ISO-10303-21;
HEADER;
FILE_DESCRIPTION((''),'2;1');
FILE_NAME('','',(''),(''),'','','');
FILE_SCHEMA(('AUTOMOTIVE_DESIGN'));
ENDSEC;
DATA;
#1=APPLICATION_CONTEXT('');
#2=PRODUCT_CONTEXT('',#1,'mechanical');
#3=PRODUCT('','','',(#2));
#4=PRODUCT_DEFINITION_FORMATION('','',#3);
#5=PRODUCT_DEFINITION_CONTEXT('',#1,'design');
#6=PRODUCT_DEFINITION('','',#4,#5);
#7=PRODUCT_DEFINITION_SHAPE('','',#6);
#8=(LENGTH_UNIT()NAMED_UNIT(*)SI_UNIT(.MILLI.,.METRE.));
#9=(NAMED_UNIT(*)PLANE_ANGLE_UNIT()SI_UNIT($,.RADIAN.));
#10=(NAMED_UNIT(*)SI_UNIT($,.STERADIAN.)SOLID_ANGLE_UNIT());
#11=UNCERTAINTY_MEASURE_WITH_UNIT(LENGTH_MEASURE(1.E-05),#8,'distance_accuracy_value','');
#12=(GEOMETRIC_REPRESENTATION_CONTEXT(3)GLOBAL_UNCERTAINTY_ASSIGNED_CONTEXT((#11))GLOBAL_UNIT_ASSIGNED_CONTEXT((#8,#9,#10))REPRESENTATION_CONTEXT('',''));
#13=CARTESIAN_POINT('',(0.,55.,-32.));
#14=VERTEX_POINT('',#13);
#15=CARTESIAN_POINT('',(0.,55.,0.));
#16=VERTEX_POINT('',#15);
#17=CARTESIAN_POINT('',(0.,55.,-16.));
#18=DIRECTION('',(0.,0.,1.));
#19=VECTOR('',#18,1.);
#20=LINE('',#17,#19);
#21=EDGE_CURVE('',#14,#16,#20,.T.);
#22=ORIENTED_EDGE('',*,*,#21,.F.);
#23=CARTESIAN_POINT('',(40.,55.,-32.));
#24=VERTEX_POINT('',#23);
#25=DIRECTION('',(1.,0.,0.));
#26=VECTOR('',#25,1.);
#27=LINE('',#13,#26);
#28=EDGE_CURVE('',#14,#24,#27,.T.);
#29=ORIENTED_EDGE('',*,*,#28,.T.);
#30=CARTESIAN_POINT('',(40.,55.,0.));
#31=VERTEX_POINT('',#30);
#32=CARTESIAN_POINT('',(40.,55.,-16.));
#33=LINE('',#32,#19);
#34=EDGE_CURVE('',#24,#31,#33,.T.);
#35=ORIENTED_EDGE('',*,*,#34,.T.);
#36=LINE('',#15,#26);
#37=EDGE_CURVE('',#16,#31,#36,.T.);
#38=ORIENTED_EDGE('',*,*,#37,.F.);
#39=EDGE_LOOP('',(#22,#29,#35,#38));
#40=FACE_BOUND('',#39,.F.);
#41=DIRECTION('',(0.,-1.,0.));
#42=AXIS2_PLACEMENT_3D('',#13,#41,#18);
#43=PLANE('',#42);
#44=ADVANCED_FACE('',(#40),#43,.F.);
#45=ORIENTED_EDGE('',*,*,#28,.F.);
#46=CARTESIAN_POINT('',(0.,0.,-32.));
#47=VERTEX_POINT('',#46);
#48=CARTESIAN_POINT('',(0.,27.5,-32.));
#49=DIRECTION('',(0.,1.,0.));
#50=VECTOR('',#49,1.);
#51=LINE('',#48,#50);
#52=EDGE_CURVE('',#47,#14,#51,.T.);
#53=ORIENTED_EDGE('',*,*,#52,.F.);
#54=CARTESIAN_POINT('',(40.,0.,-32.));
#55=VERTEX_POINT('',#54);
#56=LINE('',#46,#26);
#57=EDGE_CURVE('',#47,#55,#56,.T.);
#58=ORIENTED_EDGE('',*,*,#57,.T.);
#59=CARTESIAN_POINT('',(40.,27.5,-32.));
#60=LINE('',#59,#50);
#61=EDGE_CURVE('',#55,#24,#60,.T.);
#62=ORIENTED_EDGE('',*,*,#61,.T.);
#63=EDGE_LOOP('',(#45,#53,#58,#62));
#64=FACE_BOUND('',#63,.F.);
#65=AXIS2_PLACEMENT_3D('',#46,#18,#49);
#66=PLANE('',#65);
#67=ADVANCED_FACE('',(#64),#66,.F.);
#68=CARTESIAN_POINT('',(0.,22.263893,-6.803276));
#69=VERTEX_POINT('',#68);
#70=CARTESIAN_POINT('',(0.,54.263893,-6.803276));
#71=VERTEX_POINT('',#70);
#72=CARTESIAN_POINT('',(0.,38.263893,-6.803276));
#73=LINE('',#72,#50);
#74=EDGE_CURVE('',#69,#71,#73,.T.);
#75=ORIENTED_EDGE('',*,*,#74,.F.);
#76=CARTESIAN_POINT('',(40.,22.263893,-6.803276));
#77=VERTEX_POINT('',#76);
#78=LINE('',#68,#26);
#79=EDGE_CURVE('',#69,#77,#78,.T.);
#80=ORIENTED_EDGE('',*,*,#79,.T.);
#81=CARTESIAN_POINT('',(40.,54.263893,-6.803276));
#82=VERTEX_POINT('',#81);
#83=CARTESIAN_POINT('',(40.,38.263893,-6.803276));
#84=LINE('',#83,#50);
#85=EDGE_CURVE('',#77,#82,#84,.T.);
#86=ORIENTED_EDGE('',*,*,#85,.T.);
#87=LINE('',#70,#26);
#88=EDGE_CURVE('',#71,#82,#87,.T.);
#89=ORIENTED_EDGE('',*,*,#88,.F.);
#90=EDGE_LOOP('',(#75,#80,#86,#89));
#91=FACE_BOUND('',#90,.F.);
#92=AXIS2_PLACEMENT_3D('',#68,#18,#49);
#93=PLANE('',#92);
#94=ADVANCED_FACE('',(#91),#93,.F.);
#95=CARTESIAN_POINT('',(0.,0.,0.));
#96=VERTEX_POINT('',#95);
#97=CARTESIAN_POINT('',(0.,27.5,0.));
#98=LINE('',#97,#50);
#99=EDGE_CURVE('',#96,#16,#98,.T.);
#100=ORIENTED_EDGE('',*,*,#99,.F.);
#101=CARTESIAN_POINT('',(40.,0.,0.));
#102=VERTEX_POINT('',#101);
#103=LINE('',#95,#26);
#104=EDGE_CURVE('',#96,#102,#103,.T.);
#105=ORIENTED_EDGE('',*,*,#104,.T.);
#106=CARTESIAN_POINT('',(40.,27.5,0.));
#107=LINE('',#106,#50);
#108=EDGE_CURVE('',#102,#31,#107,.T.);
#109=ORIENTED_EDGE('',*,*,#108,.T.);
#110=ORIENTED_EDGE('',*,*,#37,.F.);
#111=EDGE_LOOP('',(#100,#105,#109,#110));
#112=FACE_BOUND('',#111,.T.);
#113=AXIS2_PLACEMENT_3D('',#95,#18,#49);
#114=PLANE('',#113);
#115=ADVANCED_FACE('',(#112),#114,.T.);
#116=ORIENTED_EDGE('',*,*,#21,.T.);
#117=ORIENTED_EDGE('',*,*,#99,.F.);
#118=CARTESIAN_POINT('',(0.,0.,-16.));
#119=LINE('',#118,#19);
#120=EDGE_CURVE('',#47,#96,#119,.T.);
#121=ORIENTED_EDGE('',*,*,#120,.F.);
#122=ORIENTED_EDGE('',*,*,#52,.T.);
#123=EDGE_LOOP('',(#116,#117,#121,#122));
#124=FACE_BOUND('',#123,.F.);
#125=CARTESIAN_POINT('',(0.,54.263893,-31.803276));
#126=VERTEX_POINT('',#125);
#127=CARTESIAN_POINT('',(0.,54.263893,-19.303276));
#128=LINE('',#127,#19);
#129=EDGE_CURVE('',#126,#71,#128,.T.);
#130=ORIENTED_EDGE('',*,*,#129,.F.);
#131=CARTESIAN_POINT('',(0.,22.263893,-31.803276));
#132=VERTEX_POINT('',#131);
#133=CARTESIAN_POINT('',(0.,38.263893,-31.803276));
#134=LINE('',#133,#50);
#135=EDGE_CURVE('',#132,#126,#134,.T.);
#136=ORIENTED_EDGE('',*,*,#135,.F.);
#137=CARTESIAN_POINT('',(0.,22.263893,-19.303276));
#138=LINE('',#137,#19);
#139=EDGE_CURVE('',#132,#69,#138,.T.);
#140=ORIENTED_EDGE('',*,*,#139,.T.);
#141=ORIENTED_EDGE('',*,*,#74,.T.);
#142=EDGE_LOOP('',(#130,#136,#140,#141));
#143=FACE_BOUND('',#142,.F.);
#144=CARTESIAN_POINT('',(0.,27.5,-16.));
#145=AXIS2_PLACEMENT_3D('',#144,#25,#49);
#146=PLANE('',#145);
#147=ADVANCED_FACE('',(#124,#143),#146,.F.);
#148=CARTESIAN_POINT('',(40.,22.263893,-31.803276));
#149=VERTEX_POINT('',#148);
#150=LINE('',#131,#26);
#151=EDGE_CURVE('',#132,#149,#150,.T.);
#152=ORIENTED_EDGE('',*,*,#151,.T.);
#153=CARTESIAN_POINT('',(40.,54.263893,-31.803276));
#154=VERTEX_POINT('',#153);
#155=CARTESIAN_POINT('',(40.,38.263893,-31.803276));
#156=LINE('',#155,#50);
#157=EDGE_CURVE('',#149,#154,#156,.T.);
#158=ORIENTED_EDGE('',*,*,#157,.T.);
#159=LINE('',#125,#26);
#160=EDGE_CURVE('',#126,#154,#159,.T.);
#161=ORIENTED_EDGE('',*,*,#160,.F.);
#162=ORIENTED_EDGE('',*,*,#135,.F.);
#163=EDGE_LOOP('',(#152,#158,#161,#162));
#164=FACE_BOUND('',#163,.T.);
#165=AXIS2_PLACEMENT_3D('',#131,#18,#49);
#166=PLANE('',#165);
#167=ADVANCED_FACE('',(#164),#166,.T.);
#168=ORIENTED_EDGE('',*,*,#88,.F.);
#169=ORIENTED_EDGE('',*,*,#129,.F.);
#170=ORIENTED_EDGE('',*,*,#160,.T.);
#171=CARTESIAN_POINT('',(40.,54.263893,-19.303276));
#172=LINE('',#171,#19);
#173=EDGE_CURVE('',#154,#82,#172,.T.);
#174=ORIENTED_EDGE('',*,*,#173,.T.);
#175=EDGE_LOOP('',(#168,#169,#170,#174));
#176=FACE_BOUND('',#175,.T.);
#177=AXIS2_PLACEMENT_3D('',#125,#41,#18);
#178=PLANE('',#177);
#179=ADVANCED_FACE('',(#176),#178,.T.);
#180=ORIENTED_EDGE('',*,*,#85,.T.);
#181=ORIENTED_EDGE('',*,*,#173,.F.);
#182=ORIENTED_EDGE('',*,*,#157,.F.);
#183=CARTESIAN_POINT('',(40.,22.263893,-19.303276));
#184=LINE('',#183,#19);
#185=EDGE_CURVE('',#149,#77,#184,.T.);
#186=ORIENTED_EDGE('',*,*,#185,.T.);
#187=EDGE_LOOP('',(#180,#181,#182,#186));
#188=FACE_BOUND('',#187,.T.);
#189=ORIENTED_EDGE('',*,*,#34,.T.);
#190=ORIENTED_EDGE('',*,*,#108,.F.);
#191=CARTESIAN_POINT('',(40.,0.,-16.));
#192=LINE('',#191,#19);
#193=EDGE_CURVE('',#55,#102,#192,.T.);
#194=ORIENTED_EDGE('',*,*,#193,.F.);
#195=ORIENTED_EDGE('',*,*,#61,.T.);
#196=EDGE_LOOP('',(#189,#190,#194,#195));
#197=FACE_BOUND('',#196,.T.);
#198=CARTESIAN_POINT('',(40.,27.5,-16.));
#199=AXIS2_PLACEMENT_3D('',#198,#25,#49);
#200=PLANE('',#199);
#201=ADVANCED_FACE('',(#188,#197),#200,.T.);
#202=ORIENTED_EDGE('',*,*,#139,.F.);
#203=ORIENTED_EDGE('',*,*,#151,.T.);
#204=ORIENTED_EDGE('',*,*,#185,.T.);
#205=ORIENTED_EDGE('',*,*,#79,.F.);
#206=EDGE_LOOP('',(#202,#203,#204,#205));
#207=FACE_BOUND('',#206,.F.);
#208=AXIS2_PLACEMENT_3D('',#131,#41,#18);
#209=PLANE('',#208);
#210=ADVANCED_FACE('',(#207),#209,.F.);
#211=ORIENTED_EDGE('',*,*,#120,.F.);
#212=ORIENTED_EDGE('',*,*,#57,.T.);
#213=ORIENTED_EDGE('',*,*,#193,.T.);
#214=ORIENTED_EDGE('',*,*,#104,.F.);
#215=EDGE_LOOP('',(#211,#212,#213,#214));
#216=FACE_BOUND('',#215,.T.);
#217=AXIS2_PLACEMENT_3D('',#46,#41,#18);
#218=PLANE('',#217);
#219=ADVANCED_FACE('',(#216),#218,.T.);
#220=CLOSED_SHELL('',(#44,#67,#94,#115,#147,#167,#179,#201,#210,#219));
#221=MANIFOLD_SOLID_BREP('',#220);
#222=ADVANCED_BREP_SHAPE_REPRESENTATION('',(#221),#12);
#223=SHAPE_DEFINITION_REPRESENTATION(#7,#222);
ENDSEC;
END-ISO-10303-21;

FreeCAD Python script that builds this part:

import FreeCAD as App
import Part
import Sketcher


def add_polygon(sketch, points):
    """Adds a closed chain of lines whose ends are joined by coincident constraints."""
    first, n = sketch.GeometryCount, len(points)
    for a, b in zip(points, points[1:] + points[:1]):
        sketch.addGeometry(Part.LineSegment(App.Vector(*a, 0), App.Vector(*b, 0)), False)
    for i in range(n):
        sketch.addConstraint(Sketcher.Constraint("Coincident", first + i, 2, first + (i + 1) % n, 1))

doc = App.newDocument("Part")
body = doc.addObject("PartDesign::Body", "Body")

# Sketch on YZ plane
sketch1 = body.newObject("Sketcher::SketchObject", "Sketch")
sketch1.AttachmentSupport = (doc.getObject("YZ_Plane"), [""])
sketch1.MapMode = "FlatFace"
add_polygon(sketch1, [(0, 0), (0, -32), (55, -32), (55, 0)])  # lines 0-3
sketch1.addConstraint(Sketcher.Constraint("Vertical", 0))
sketch1.addConstraint(Sketcher.Constraint("Horizontal", 1))
sketch1.addConstraint(Sketcher.Constraint("Vertical", 2))
sketch1.addConstraint(Sketcher.Constraint("Horizontal", 3))
sketch1.addConstraint(Sketcher.Constraint("Coincident", 3, 2, -1, 1))
sketch1.addConstraint(Sketcher.Constraint("DistanceX", 1, 1, 1, 2, 55.0))
sketch1.addConstraint(Sketcher.Constraint("DistanceY", 0, 2, 0, 1, 32.0))
pad1 = body.newObject("PartDesign::Pad", "Pad")
pad1.Profile = sketch1
pad1.Length = 40

# Sketch on YZ plane
sketch2 = body.newObject("Sketcher::SketchObject", "Sketch001")
sketch2.AttachmentSupport = (doc.getObject("YZ_Plane"), [""])
sketch2.MapMode = "FlatFace"
add_polygon(sketch2, [(22, -7), (22, -32), (54, -32), (54, -7)])  # lines 0-3
sketch2.addConstraint(Sketcher.Constraint("Vertical", 0))
sketch2.addConstraint(Sketcher.Constraint("Horizontal", 1))
sketch2.addConstraint(Sketcher.Constraint("Vertical", 2))
sketch2.addConstraint(Sketcher.Constraint("Horizontal", 3))
sketch2.addConstraint(Sketcher.Constraint("DistanceX", 1, 1, 1, 2, 32.0))
sketch2.addConstraint(Sketcher.Constraint("DistanceY", 0, 2, 0, 1, 25.0))
sketch2.addConstraint(Sketcher.Constraint("DistanceX", -1, 1, 0, 2, 22.263893))
sketch2.addConstraint(Sketcher.Constraint("DistanceY", 0, 2, -1, 1, 31.803276))
pocket1 = body.newObject("PartDesign::Pocket", "Pocket")
pocket1.Profile = sketch2
pocket1.Length = 40
pocket1.Reversed = True

doc.recompute()
